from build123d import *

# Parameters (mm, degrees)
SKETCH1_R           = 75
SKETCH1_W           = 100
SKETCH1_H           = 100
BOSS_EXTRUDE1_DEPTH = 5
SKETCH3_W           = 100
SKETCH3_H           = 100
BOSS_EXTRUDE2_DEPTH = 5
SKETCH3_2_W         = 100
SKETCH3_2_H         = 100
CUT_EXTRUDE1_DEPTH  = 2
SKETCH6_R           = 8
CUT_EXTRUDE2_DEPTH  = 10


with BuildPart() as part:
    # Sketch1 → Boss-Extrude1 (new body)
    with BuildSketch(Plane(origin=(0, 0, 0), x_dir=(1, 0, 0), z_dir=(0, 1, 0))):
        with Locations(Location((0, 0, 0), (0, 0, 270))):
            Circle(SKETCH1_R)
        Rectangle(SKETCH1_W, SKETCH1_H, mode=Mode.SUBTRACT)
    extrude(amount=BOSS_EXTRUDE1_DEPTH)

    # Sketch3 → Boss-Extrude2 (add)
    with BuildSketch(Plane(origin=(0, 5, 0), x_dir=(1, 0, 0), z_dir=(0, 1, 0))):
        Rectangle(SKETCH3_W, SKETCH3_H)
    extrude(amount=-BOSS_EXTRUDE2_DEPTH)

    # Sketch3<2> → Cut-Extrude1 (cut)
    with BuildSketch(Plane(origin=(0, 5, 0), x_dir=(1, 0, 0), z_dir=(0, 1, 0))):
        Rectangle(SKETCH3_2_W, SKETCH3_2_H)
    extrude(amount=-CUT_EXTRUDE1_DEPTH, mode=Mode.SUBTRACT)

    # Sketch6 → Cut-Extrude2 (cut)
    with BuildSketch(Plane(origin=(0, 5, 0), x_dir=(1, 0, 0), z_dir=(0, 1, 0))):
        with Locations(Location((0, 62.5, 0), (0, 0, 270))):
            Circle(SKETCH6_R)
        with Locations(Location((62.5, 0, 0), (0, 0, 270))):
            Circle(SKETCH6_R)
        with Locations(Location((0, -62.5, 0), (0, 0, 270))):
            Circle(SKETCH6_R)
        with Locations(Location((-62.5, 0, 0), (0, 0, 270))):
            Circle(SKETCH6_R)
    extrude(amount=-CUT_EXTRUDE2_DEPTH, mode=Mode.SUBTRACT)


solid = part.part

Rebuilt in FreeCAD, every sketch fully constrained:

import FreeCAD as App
import Part
import Sketcher
Q = App.Units.Quantity

doc = App.newDocument("Part")
body = doc.addObject("PartDesign::Body", "Body")

# Sketch on XZ plane
sketch1 = body.newObject("Sketcher::SketchObject", "Sketch")
sketch1.AttachmentSupport = (doc.getObject("XZ_Plane"), [""])
sketch1.MapMode = "FlatFace"
sketch1.addGeometry([
    Part.Circle(App.Vector(0, 0, 0), App.Vector(0, 0, 1), 75),  # 0
    Part.LineSegment(App.Vector(50, 50, 0), App.Vector(-50, 50, 0)),  # 1
    Part.LineSegment(App.Vector(-50, 50, 0), App.Vector(-50, -50, 0)),  # 2
    Part.LineSegment(App.Vector(-50, -50, 0), App.Vector(50, -50, 0)),  # 3
    Part.LineSegment(App.Vector(50, -50, 0), App.Vector(50, 50, 0)),  # 4
], False)
sketch1.addConstraint([
    Sketcher.Constraint("Coincident", 1, 2, 2, 1),
    Sketcher.Constraint("Coincident", 2, 2, 3, 1),
    Sketcher.Constraint("Coincident", 3, 2, 4, 1),
    Sketcher.Constraint("Coincident", 4, 2, 1, 1),
    Sketcher.Constraint("Horizontal", 1),
    Sketcher.Constraint("Vertical", 2),
    Sketcher.Constraint("Horizontal", 3),
    Sketcher.Constraint("Vertical", 4),
    Sketcher.Constraint("Coincident", 0, 3, -1, 1),
    Sketcher.Constraint("Symmetric", 1, 2, 3, 2, -1, 1),
    Sketcher.Constraint("Equal", 3, 2),
    Sketcher.Constraint("Diameter", 0, Q("150 mm")),
    Sketcher.Constraint("DistanceX", 1, 2, 1, 1, Q("100 mm")),
])
pad1 = body.newObject("PartDesign::Pad", "Pad")
pad1.Profile = sketch1
pad1.Length = 5
pad1.Reversed = True

# Sketch on XZ plane
sketch2 = body.newObject("Sketcher::SketchObject", "Sketch001")
sketch2.AttachmentSupport = (doc.getObject("XZ_Plane"), [""])
sketch2.MapMode = "FlatFace"
sketch2.AttachmentOffset = App.Placement(App.Vector(0, 0, -5), App.Rotation())
sketch2.addGeometry([
    Part.LineSegment(App.Vector(-50, -50, 0), App.Vector(-50, 50, 0)),
    Part.LineSegment(App.Vector(-50, 50, 0), App.Vector(50, 50, 0)),
    Part.LineSegment(App.Vector(50, 50, 0), App.Vector(50, -50, 0)),
    Part.LineSegment(App.Vector(50, -50, 0), App.Vector(-50, -50, 0)),
], False)
sketch2.addConstraint([
    Sketcher.Constraint("Coincident", 0, 2, 1, 1),
    Sketcher.Constraint("Coincident", 1, 2, 2, 1),
    Sketcher.Constraint("Coincident", 2, 2, 3, 1),
    Sketcher.Constraint("Coincident", 3, 2, 0, 1),
    Sketcher.Constraint("Vertical", 0),
    Sketcher.Constraint("Horizontal", 1),
    Sketcher.Constraint("Vertical", 2),
    Sketcher.Constraint("Horizontal", 3),
    Sketcher.Constraint("Symmetric", 0, 2, 2, 2, -1, 1),
    Sketcher.Constraint("Equal", 3, 0),
    Sketcher.Constraint("DistanceX", 1, 1, 1, 2, Q("100 mm")),
])
pad2 = body.newObject("PartDesign::Pad", "Pad001")
pad2.Profile = sketch2
pad2.Length = 5

# Sketch on XZ plane
sketch3 = body.newObject("Sketcher::SketchObject", "Sketch002")
sketch3.AttachmentSupport = (doc.getObject("XZ_Plane"), [""])
sketch3.MapMode = "FlatFace"
sketch3.AttachmentOffset = App.Placement(App.Vector(0, 0, -5), App.Rotation())
sketch3.addGeometry([
    Part.LineSegment(App.Vector(-50, -50, 0), App.Vector(-50, 50, 0)),
    Part.LineSegment(App.Vector(-50, 50, 0), App.Vector(50, 50, 0)),
    Part.LineSegment(App.Vector(50, 50, 0), App.Vector(50, -50, 0)),
    Part.LineSegment(App.Vector(50, -50, 0), App.Vector(-50, -50, 0)),
], False)
sketch3.addConstraint([
    Sketcher.Constraint("Coincident", 0, 2, 1, 1),
    Sketcher.Constraint("Coincident", 1, 2, 2, 1),
    Sketcher.Constraint("Coincident", 2, 2, 3, 1),
    Sketcher.Constraint("Coincident", 3, 2, 0, 1),
    Sketcher.Constraint("Vertical", 0),
    Sketcher.Constraint("Horizontal", 1),
    Sketcher.Constraint("Vertical", 2),
    Sketcher.Constraint("Horizontal", 3),
    Sketcher.Constraint("Symmetric", 0, 2, 2, 2, -1, 1),
    Sketcher.Constraint("Equal", 3, 0),
    Sketcher.Constraint("DistanceX", 1, 1, 1, 2, Q("100 mm")),
])
pocket1 = body.newObject("PartDesign::Pocket", "Pocket")
pocket1.Profile = sketch3
pocket1.Length = 2
pocket1.Reversed = True

# Sketch on XZ plane
sketch4 = body.newObject("Sketcher::SketchObject", "Sketch003")
sketch4.AttachmentSupport = (doc.getObject("XZ_Plane"), [""])
sketch4.MapMode = "FlatFace"
sketch4.AttachmentOffset = App.Placement(App.Vector(0, 0, -5), App.Rotation())
sketch4.addGeometry([
    Part.Circle(App.Vector(0, -62.5, 0), App.Vector(0, 0, 1), 8),
    Part.Circle(App.Vector(62.5, 0, 0), App.Vector(0, 0, 1), 8),
    Part.Circle(App.Vector(0, 62.5, 0), App.Vector(0, 0, 1), 8),
    Part.Circle(App.Vector(-62.5, 0, 0), App.Vector(0, 0, 1), 8),
], False)
sketch4.addConstraint([
    Sketcher.Constraint("Equal", 0, 1),
    Sketcher.Constraint("Equal", 1, 2),
    Sketcher.Constraint("Equal", 2, 3),
    Sketcher.Constraint("Symmetric", 0, 3, 2, 3, -1, 1),
    Sketcher.Constraint("Symmetric", 1, 3, 3, 3, -1, 1),
    Sketcher.Constraint("PointOnObject", 0, 3, -2),
    Sketcher.Constraint("PointOnObject", 1, 3, -1),
    Sketcher.Constraint("Diameter", 0, Q("16 mm")),
    Sketcher.Constraint("DistanceY", 0, 3, 2, 3, Q("125 mm")),
    Sketcher.Constraint("DistanceX", 3, 3, 1, 3, Q("125 mm")),
])
pocket2 = body.newObject("PartDesign::Pocket", "Pocket001")
pocket2.Profile = sketch4
pocket2.Length = 10
pocket2.Reversed = True

doc.recompute()
